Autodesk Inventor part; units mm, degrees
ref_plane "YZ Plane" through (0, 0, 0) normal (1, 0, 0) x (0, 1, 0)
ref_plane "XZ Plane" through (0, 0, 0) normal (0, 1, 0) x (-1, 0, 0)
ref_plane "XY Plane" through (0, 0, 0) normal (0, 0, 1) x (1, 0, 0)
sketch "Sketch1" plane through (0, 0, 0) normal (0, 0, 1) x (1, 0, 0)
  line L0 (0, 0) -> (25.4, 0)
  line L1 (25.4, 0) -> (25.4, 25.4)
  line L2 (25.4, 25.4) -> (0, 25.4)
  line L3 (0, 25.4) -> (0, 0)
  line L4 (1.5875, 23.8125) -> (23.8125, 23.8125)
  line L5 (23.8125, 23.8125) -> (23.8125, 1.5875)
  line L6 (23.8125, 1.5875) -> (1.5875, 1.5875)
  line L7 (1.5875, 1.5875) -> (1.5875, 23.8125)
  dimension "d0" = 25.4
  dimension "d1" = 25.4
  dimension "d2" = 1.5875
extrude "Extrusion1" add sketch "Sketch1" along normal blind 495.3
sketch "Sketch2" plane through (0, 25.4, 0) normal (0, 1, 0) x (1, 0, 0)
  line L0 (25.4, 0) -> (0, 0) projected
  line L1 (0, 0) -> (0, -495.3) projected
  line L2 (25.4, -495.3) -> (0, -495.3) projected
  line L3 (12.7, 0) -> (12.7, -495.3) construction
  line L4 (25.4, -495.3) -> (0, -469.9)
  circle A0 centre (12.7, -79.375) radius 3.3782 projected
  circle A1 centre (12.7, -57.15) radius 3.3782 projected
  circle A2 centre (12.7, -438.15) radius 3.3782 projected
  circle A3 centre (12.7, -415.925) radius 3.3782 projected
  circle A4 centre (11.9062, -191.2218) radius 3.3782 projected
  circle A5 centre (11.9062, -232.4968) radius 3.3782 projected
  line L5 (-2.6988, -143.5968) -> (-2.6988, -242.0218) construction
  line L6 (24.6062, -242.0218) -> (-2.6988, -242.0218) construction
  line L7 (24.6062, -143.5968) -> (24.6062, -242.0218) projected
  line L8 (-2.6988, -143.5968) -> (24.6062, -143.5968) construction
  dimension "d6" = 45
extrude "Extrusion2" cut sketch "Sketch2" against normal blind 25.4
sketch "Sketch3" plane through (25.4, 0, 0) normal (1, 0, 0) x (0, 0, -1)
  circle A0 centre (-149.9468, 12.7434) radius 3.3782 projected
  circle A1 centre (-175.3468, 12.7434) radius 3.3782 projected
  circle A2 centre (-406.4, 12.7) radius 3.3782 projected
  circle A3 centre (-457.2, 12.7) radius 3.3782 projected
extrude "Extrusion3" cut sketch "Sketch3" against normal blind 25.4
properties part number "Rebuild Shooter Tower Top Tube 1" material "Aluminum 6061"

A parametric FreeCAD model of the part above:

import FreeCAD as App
import Part
import Sketcher
from FreeCAD import Vector
Q = App.Units.Quantity


def add_polygon(sketch, points):
    """Adds a closed chain of lines whose ends are joined by coincident constraints."""
    first, n = sketch.GeometryCount, len(points)
    for a, b in zip(points, points[1:] + points[:1]):
        sketch.addGeometry(Part.LineSegment(App.Vector(*a, 0), App.Vector(*b, 0)), False)
    for i in range(n):
        sketch.addConstraint(Sketcher.Constraint("Coincident", first + i, 2, first + (i + 1) % n, 1))

doc = App.newDocument("Part")
params = doc.addObject("Spreadsheet::Sheet", "Params")
for row, (alias, value) in enumerate([
    ("sketch1_width", "1 in"),
    ("pad1_length", "19.5 in"),
    ("sketch2_width", "1 in"),
    ("sketch2_diameter", "0.266 in"),
    ("pocket1_length", "1 in"),
    ("sketch3_diameter", "0.266 in"),
    ("pocket2_length", "1 in"),
], start=1):
    params.set(f"A{row}", alias)
    params.set(f"B{row}", "=" + value)
    params.setAlias(f"B{row}", alias)

body = doc.addObject("PartDesign::Body", "Body")

sketch1 = doc.addObject("Sketcher::SketchObject", "Sketch")
body.addObject(sketch1)
sketch1.AttachmentSupport = (doc.XY_Plane, [""])
sketch1.MapMode = "FlatFace"
add_polygon(sketch1, [(0, 25), (0, 0), (25, 0), (25, 25)])
add_polygon(sketch1, [(2, 2), (2, 24), (24, 24), (24, 2)])
sketch1.addConstraint(Sketcher.Constraint("Vertical", 0))
sketch1.addConstraint(Sketcher.Constraint("Horizontal", 1))
sketch1.addConstraint(Sketcher.Constraint("Vertical", 2))
sketch1.addConstraint(Sketcher.Constraint("Horizontal", 3))
sketch1.addConstraint(Sketcher.Constraint("Vertical", 4))
sketch1.addConstraint(Sketcher.Constraint("Horizontal", 5))
sketch1.addConstraint(Sketcher.Constraint("Vertical", 6))
sketch1.addConstraint(Sketcher.Constraint("Horizontal", 7))
sketch1.addConstraint(Sketcher.Constraint("Coincident", 0, 2, -1, 1))
sketch1.addConstraint(Sketcher.Constraint("Equal", 3, 0))
sketch1.addConstraint(Sketcher.Constraint("Equal", 7, 4))
sketch1.addConstraint(Sketcher.Constraint("DistanceX", 1, 1, 1, 2, Q("1 in")))
sketch1.addConstraint(Sketcher.Constraint("DistanceX", -1, 1, 4, 2, Q("0.0625 in")))
sketch1.addConstraint(Sketcher.Constraint("DistanceY", -1, 1, 6, 2, Q("0.0625 in")))
sketch1.addConstraint(Sketcher.Constraint("DistanceY", 4, 2, 3, 2, Q("0.0625 in")))
sketch1.setExpression("Constraints[19]", "Params.sketch1_width")
pad1 = doc.addObject("PartDesign::Pad", "Pad")
body.addObject(pad1)
pad1.Profile = sketch1
pad1.setExpression("Length", "Params.pad1_length")

sketch2 = doc.addObject("Sketcher::SketchObject", "Sketch001")
body.addObject(sketch2)
sketch2.AttachmentSupport = (doc.XZ_Plane, [""])
sketch2.MapMode = "FlatFace"
sketch2.AttachmentOffset = App.Placement(Vector(0, 0, -1 * 25.4), App.Rotation())
add_polygon(sketch2, [(25.4, 495.3), (0, 469.9), (0, 495.3)])
sketch2.addGeometry(Part.Circle(Vector(12.7, 79.4, 0), Vector(0, 0, 1), 3.4), False)
sketch2.addGeometry(Part.Circle(Vector(12.7, 57.1, 0), Vector(0, 0, 1), 3.4), False)
sketch2.addGeometry(Part.Circle(Vector(12.7, 438.1, 0), Vector(0, 0, 1), 3.4), False)
sketch2.addGeometry(Part.Circle(Vector(12.7, 415.9, 0), Vector(0, 0, 1), 3.4), False)
sketch2.addGeometry(Part.Circle(Vector(11.9, 191.2, 0), Vector(0, 0, 1), 3.4), False)
sketch2.addGeometry(Part.Circle(Vector(11.9, 232.5, 0), Vector(0, 0, 1), 3.4), False)
sketch2.addConstraint(Sketcher.Constraint("Vertical", 1))
sketch2.addConstraint(Sketcher.Constraint("Horizontal", 2))
sketch2.addConstraint(Sketcher.Constraint("Equal", 3, 4))
sketch2.addConstraint(Sketcher.Constraint("Equal", 4, 5))
sketch2.addConstraint(Sketcher.Constraint("Equal", 5, 6))
sketch2.addConstraint(Sketcher.Constraint("Equal", 6, 7))
sketch2.addConstraint(Sketcher.Constraint("Equal", 7, 8))
sketch2.addConstraint(Sketcher.Constraint("PointOnObject", 0, 2, -2))
sketch2.addConstraint(Sketcher.Constraint("Vertical", 3, 3, 4, 3))
sketch2.addConstraint(Sketcher.Constraint("Vertical", 4, 3, 5, 3))
sketch2.addConstraint(Sketcher.Constraint("Vertical", 5, 3, 6, 3))
sketch2.addConstraint(Sketcher.Constraint("Vertical", 7, 3, 8, 3))
sketch2.addConstraint(Sketcher.Constraint("Equal", 2, 1))
sketch2.addConstraint(Sketcher.Constraint("DistanceX", 2, 1, 2, 2, Q("1 in")))
sketch2.addConstraint(Sketcher.Constraint("Diameter", 3, Q("0.266 in")))
sketch2.addConstraint(Sketcher.Constraint("DistanceY", 4, 3, 5, 3, Q("15 in")))
sketch2.addConstraint(Sketcher.Constraint("DistanceX", -1, 1, 3, 3, Q("0.5 in")))
sketch2.addConstraint(Sketcher.Constraint("DistanceY", -1, 1, 0, 2, Q("18.5 in")))
sketch2.addConstraint(Sketcher.Constraint("DistanceY", -1, 1, 4, 3, Q("2.25 in")))
sketch2.addConstraint(Sketcher.Constraint("DistanceY", 3, 3, 6, 3, Q("13.25 in")))
sketch2.addConstraint(Sketcher.Constraint("DistanceY", -1, 1, 3, 3, Q("3.125 in")))
sketch2.addConstraint(Sketcher.Constraint("DistanceX", -1, 1, 7, 3, Q("0.468748 in")))
sketch2.addConstraint(Sketcher.Constraint("DistanceY", 7, 3, 8, 3, Q("1.625 in")))
sketch2.addConstraint(Sketcher.Constraint("DistanceY", -1, 1, 7, 3, Q("191.2218 mm")))
sketch2.setExpression("Constraints[16]", "Params.sketch2_width")
sketch2.setExpression("Constraints[17]", "Params.sketch2_diameter")
pocket1 = doc.addObject("PartDesign::Pocket", "Pocket")
body.addObject(pocket1)
pocket1.Profile = sketch2
pocket1.setExpression("Length", "Params.pocket1_length")
pocket1.Reversed = True

sketch3 = doc.addObject("Sketcher::SketchObject", "Sketch002")
body.addObject(sketch3)
sketch3.AttachmentSupport = (doc.YZ_Plane, [""])
sketch3.MapMode = "FlatFace"
sketch3.AttachmentOffset = App.Placement(Vector(0, 0, 1 * 25.4), App.Rotation())
sketch3.addGeometry(Part.Circle(Vector(12.7, 149.9, 0), Vector(0, 0, 1), 3.4), False)
sketch3.addGeometry(Part.Circle(Vector(12.7, 175.3, 0), Vector(0, 0, 1), 3.4), False)
sketch3.addGeometry(Part.Circle(Vector(12.7, 406.4, 0), Vector(0, 0, 1), 3.4), False)
sketch3.addGeometry(Part.Circle(Vector(12.7, 457.2, 0), Vector(0, 0, 1), 3.4), False)
sketch3.addConstraint(Sketcher.Constraint("Equal", 0, 1))
sketch3.addConstraint(Sketcher.Constraint("Equal", 1, 2))
sketch3.addConstraint(Sketcher.Constraint("Equal", 2, 3))
sketch3.addConstraint(Sketcher.Constraint("Vertical", 0, 3, 1, 3))
sketch3.addConstraint(Sketcher.Constraint("Vertical", 2, 3, 3, 3))
sketch3.addConstraint(Sketcher.Constraint("Diameter", 0, Q("0.266 in")))
sketch3.addConstraint(Sketcher.Constraint("DistanceY", -1, 1, 2, 3, Q("16 in")))
sketch3.addConstraint(Sketcher.Constraint("DistanceY", -1, 1, 3, 3, Q("18 in")))
sketch3.addConstraint(Sketcher.Constraint("DistanceY", 0, 3, 1, 3, Q("1 in")))
sketch3.addConstraint(Sketcher.Constraint("DistanceX", -1, 1, 2, 3, Q("0.5 in")))
sketch3.addConstraint(Sketcher.Constraint("DistanceX", -1, 1, 0, 3, Q("0.5017 in")))
sketch3.addConstraint(Sketcher.Constraint("DistanceY", -1, 1, 0, 3, Q("149.9468 mm")))
sketch3.setExpression("Constraints[5]", "Params.sketch3_diameter")
pocket2 = doc.addObject("PartDesign::Pocket", "Pocket001")
body.addObject(pocket2)
pocket2.Profile = sketch3
pocket2.setExpression("Length", "Params.pocket2_length")

doc.recompute()
